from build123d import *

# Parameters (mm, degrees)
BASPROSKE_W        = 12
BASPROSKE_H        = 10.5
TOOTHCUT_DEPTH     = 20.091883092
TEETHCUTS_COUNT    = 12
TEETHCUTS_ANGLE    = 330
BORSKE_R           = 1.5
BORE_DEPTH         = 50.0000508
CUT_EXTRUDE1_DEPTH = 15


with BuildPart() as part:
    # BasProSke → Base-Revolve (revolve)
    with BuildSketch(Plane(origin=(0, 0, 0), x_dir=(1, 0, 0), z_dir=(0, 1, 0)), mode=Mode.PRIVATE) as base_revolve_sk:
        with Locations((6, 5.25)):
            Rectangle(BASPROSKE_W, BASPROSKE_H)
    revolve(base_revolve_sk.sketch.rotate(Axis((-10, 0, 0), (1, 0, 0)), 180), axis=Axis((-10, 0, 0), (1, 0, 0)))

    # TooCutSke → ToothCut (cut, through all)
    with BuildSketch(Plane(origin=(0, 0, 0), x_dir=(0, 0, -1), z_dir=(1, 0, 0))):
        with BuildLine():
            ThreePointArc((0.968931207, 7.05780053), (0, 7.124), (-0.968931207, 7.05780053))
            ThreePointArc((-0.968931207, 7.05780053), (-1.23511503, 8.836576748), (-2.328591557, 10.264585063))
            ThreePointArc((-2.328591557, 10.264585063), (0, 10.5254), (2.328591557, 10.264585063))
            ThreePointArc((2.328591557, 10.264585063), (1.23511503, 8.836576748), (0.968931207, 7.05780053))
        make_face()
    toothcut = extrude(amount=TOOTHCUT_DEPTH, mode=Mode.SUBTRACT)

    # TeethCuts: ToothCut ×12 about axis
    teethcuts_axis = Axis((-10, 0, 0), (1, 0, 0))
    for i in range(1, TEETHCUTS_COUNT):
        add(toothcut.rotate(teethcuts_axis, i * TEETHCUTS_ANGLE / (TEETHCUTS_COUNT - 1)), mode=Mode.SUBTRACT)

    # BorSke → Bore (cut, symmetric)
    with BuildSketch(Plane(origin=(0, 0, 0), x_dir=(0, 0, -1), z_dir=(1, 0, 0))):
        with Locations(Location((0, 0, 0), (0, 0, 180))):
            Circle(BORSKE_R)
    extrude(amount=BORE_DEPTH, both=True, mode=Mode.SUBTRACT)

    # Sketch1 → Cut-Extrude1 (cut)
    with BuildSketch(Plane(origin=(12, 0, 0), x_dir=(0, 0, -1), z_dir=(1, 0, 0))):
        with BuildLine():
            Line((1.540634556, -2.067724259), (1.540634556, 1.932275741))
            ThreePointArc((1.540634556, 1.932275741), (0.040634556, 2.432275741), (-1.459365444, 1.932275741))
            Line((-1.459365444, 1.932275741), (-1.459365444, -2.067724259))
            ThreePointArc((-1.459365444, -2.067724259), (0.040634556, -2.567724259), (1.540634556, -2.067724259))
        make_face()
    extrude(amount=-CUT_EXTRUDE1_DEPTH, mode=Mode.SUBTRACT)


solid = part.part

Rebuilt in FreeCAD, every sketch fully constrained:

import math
import FreeCAD as App
import Part
import Sketcher

V = App.Vector


def add_polygon(sketch, points):
    """Adds a closed chain of lines whose ends are joined by coincident constraints."""
    first, n = sketch.GeometryCount, len(points)
    for a, b in zip(points, points[1:] + points[:1]):
        sketch.addGeometry(Part.LineSegment(App.Vector(*a, 0), App.Vector(*b, 0)), False)
    for i in range(n):
        sketch.addConstraint(Sketcher.Constraint("Coincident", first + i, 2, first + (i + 1) % n, 1))

doc = App.newDocument("Part")
body = doc.addObject("PartDesign::Body", "Body")

# Sketch on XZ plane
sketch1 = body.newObject("Sketcher::SketchObject", "Sketch")
sketch1.AttachmentSupport = (doc.getObject("XZ_Plane"), [""])
sketch1.MapMode = "FlatFace"
add_polygon(sketch1, [(0, -10), (0, 0), (12, 0), (12, -10)])  # lines 0-3
sketch1.addConstraint([
    Sketcher.Constraint("Vertical", 0),
    Sketcher.Constraint("Horizontal", 1),
    Sketcher.Constraint("Vertical", 2),
    Sketcher.Constraint("Horizontal", 3),
    Sketcher.Constraint("Coincident", 0, 2, -1, 1),
    Sketcher.Constraint("DistanceX", 1, 1, 1, 2, 12.0),
    Sketcher.Constraint("DistanceY", 0, 1, 0, 2, 10.5),
])
revolution = body.newObject("PartDesign::Revolution", "Revolution")
revolution.Profile = sketch1
revolution.ReferenceAxis = (sketch1, ["H_Axis"])
revolution.Angle = 360

# Sketch on YZ plane
sketch2 = body.newObject("Sketcher::SketchObject", "Sketch001")
sketch2.AttachmentSupport = (doc.getObject("YZ_Plane"), [""])
sketch2.MapMode = "FlatFace"
sketch2.addGeometry([
    Part.ArcOfCircle(Part.Circle(V(0, 0, 0), V(0, 0, 1), 7.1), math.radians(-7.82), math.radians(7.82)),
    Part.ArcOfCircle(Part.Circle(V(7.4, -4.5, 0), V(0, 0, 1), 3.6), math.radians(38), math.radians(96)),
    Part.ArcOfCircle(Part.Circle(V(0, 0, 0), V(0, 0, 1), 10.5), math.radians(-13), math.radians(13)),
    Part.ArcOfCircle(Part.Circle(V(7.4, 4.5, 0), V(0, 0, 1), 3.6), math.radians(-96), math.radians(-38)),
], False)
sketch2.addConstraint([
    Sketcher.Constraint("Coincident", 0, 1, 1, 2),
    Sketcher.Constraint("Coincident", 1, 1, 2, 1),
    Sketcher.Constraint("Coincident", 2, 2, 3, 2),
    Sketcher.Constraint("Coincident", 3, 1, 0, 2),
    Sketcher.Constraint("Coincident", 0, 3, -1, 1),
    Sketcher.Constraint("Coincident", 2, 3, -1, 1),
    Sketcher.Constraint("Equal", 1, 3),
    Sketcher.Constraint("Symmetric", 1, 3, 3, 3, -1),
    Sketcher.Constraint("Radius", 1, 3.6),
    Sketcher.Constraint("Radius", 0, 7.124),
    Sketcher.Constraint("Radius", 2, 10.5254),
    Sketcher.Constraint("DistanceX", -1, 1, 0, 1, 7.057801),
    Sketcher.Constraint("DistanceY", 1, 1, -1, 1, 2.328592),
])
pocket1 = body.newObject("PartDesign::Pocket", "Pocket")
pocket1.Profile = sketch2
pocket1.Type = "ThroughAll"
pocket1.Reversed = True
doc.recompute()

polarpattern = body.newObject("PartDesign::PolarPattern", "PolarPattern")
polarpattern.Originals = [pocket1]
polarpattern.Axis = (doc.getObject("X_Axis"), [""])
polarpattern.Angle = 360
polarpattern.Occurrences = 12
body.Tip = polarpattern

# Sketch on YZ plane
sketch3 = body.newObject("Sketcher::SketchObject", "Sketch002")
sketch3.AttachmentSupport = (doc.getObject("YZ_Plane"), [""])
sketch3.MapMode = "FlatFace"
sketch3.addGeometry(Part.Circle(V(0, 0, 0), V(0, 0, 1), 1.5), False)
sketch3.addConstraint([
    Sketcher.Constraint("Coincident", 0, 3, -1, 1),
    Sketcher.Constraint("Diameter", 0, 3.0),
])
pocket2 = body.newObject("PartDesign::Pocket", "Pocket001")
pocket2.Profile = sketch3
pocket2.Length = 100.000102
pocket2.Midplane = True

# Sketch on YZ plane
sketch4 = body.newObject("Sketcher::SketchObject", "Sketch003")
sketch4.AttachmentSupport = (doc.getObject("YZ_Plane"), [""])
sketch4.MapMode = "FlatFace"
sketch4.AttachmentOffset = App.Placement(V(0, 0, 12), App.Rotation())
sketch4.addGeometry([
    Part.LineSegment(V(-2.1, -1.5, 0), V(1.9, -1.5, 0)),
    Part.ArcOfCircle(Part.Circle(V(-0.1, 0, 0), V(0, 0, 1), 2.5), math.radians(-37), math.radians(37)),
    Part.LineSegment(V(1.9, 1.5, 0), V(-2.1, 1.5, 0)),
    Part.ArcOfCircle(Part.Circle(V(-0.1, 0, 0), V(0, 0, 1), 2.5), math.radians(143), math.radians(217)),
], False)
sketch4.addConstraint([
    Sketcher.Constraint("Coincident", 0, 2, 1, 1),
    Sketcher.Constraint("Coincident", 1, 2, 2, 1),
    Sketcher.Constraint("Coincident", 2, 2, 3, 1),
    Sketcher.Constraint("Coincident", 3, 2, 0, 1),
    Sketcher.Constraint("Horizontal", 0),
    Sketcher.Constraint("Horizontal", 2),
    Sketcher.Constraint("Coincident", 3, 3, 1, 3),
    Sketcher.Constraint("Equal", 1, 3),
    Sketcher.Constraint("Vertical", 0, 2, 1, 2),
    Sketcher.Constraint("Radius", 1, 2.5),
    Sketcher.Constraint("DistanceX", 0, 1, 0, 2, 4.0),
    Sketcher.Constraint("DistanceX", 1, 3, -1, 1, 0.067724),
    Sketcher.Constraint("DistanceY", 1, 3, -1, 1, 0.040635),
])
pocket3 = body.newObject("PartDesign::Pocket", "Pocket002")
pocket3.Profile = sketch4
pocket3.Length = 15

doc.recompute()
